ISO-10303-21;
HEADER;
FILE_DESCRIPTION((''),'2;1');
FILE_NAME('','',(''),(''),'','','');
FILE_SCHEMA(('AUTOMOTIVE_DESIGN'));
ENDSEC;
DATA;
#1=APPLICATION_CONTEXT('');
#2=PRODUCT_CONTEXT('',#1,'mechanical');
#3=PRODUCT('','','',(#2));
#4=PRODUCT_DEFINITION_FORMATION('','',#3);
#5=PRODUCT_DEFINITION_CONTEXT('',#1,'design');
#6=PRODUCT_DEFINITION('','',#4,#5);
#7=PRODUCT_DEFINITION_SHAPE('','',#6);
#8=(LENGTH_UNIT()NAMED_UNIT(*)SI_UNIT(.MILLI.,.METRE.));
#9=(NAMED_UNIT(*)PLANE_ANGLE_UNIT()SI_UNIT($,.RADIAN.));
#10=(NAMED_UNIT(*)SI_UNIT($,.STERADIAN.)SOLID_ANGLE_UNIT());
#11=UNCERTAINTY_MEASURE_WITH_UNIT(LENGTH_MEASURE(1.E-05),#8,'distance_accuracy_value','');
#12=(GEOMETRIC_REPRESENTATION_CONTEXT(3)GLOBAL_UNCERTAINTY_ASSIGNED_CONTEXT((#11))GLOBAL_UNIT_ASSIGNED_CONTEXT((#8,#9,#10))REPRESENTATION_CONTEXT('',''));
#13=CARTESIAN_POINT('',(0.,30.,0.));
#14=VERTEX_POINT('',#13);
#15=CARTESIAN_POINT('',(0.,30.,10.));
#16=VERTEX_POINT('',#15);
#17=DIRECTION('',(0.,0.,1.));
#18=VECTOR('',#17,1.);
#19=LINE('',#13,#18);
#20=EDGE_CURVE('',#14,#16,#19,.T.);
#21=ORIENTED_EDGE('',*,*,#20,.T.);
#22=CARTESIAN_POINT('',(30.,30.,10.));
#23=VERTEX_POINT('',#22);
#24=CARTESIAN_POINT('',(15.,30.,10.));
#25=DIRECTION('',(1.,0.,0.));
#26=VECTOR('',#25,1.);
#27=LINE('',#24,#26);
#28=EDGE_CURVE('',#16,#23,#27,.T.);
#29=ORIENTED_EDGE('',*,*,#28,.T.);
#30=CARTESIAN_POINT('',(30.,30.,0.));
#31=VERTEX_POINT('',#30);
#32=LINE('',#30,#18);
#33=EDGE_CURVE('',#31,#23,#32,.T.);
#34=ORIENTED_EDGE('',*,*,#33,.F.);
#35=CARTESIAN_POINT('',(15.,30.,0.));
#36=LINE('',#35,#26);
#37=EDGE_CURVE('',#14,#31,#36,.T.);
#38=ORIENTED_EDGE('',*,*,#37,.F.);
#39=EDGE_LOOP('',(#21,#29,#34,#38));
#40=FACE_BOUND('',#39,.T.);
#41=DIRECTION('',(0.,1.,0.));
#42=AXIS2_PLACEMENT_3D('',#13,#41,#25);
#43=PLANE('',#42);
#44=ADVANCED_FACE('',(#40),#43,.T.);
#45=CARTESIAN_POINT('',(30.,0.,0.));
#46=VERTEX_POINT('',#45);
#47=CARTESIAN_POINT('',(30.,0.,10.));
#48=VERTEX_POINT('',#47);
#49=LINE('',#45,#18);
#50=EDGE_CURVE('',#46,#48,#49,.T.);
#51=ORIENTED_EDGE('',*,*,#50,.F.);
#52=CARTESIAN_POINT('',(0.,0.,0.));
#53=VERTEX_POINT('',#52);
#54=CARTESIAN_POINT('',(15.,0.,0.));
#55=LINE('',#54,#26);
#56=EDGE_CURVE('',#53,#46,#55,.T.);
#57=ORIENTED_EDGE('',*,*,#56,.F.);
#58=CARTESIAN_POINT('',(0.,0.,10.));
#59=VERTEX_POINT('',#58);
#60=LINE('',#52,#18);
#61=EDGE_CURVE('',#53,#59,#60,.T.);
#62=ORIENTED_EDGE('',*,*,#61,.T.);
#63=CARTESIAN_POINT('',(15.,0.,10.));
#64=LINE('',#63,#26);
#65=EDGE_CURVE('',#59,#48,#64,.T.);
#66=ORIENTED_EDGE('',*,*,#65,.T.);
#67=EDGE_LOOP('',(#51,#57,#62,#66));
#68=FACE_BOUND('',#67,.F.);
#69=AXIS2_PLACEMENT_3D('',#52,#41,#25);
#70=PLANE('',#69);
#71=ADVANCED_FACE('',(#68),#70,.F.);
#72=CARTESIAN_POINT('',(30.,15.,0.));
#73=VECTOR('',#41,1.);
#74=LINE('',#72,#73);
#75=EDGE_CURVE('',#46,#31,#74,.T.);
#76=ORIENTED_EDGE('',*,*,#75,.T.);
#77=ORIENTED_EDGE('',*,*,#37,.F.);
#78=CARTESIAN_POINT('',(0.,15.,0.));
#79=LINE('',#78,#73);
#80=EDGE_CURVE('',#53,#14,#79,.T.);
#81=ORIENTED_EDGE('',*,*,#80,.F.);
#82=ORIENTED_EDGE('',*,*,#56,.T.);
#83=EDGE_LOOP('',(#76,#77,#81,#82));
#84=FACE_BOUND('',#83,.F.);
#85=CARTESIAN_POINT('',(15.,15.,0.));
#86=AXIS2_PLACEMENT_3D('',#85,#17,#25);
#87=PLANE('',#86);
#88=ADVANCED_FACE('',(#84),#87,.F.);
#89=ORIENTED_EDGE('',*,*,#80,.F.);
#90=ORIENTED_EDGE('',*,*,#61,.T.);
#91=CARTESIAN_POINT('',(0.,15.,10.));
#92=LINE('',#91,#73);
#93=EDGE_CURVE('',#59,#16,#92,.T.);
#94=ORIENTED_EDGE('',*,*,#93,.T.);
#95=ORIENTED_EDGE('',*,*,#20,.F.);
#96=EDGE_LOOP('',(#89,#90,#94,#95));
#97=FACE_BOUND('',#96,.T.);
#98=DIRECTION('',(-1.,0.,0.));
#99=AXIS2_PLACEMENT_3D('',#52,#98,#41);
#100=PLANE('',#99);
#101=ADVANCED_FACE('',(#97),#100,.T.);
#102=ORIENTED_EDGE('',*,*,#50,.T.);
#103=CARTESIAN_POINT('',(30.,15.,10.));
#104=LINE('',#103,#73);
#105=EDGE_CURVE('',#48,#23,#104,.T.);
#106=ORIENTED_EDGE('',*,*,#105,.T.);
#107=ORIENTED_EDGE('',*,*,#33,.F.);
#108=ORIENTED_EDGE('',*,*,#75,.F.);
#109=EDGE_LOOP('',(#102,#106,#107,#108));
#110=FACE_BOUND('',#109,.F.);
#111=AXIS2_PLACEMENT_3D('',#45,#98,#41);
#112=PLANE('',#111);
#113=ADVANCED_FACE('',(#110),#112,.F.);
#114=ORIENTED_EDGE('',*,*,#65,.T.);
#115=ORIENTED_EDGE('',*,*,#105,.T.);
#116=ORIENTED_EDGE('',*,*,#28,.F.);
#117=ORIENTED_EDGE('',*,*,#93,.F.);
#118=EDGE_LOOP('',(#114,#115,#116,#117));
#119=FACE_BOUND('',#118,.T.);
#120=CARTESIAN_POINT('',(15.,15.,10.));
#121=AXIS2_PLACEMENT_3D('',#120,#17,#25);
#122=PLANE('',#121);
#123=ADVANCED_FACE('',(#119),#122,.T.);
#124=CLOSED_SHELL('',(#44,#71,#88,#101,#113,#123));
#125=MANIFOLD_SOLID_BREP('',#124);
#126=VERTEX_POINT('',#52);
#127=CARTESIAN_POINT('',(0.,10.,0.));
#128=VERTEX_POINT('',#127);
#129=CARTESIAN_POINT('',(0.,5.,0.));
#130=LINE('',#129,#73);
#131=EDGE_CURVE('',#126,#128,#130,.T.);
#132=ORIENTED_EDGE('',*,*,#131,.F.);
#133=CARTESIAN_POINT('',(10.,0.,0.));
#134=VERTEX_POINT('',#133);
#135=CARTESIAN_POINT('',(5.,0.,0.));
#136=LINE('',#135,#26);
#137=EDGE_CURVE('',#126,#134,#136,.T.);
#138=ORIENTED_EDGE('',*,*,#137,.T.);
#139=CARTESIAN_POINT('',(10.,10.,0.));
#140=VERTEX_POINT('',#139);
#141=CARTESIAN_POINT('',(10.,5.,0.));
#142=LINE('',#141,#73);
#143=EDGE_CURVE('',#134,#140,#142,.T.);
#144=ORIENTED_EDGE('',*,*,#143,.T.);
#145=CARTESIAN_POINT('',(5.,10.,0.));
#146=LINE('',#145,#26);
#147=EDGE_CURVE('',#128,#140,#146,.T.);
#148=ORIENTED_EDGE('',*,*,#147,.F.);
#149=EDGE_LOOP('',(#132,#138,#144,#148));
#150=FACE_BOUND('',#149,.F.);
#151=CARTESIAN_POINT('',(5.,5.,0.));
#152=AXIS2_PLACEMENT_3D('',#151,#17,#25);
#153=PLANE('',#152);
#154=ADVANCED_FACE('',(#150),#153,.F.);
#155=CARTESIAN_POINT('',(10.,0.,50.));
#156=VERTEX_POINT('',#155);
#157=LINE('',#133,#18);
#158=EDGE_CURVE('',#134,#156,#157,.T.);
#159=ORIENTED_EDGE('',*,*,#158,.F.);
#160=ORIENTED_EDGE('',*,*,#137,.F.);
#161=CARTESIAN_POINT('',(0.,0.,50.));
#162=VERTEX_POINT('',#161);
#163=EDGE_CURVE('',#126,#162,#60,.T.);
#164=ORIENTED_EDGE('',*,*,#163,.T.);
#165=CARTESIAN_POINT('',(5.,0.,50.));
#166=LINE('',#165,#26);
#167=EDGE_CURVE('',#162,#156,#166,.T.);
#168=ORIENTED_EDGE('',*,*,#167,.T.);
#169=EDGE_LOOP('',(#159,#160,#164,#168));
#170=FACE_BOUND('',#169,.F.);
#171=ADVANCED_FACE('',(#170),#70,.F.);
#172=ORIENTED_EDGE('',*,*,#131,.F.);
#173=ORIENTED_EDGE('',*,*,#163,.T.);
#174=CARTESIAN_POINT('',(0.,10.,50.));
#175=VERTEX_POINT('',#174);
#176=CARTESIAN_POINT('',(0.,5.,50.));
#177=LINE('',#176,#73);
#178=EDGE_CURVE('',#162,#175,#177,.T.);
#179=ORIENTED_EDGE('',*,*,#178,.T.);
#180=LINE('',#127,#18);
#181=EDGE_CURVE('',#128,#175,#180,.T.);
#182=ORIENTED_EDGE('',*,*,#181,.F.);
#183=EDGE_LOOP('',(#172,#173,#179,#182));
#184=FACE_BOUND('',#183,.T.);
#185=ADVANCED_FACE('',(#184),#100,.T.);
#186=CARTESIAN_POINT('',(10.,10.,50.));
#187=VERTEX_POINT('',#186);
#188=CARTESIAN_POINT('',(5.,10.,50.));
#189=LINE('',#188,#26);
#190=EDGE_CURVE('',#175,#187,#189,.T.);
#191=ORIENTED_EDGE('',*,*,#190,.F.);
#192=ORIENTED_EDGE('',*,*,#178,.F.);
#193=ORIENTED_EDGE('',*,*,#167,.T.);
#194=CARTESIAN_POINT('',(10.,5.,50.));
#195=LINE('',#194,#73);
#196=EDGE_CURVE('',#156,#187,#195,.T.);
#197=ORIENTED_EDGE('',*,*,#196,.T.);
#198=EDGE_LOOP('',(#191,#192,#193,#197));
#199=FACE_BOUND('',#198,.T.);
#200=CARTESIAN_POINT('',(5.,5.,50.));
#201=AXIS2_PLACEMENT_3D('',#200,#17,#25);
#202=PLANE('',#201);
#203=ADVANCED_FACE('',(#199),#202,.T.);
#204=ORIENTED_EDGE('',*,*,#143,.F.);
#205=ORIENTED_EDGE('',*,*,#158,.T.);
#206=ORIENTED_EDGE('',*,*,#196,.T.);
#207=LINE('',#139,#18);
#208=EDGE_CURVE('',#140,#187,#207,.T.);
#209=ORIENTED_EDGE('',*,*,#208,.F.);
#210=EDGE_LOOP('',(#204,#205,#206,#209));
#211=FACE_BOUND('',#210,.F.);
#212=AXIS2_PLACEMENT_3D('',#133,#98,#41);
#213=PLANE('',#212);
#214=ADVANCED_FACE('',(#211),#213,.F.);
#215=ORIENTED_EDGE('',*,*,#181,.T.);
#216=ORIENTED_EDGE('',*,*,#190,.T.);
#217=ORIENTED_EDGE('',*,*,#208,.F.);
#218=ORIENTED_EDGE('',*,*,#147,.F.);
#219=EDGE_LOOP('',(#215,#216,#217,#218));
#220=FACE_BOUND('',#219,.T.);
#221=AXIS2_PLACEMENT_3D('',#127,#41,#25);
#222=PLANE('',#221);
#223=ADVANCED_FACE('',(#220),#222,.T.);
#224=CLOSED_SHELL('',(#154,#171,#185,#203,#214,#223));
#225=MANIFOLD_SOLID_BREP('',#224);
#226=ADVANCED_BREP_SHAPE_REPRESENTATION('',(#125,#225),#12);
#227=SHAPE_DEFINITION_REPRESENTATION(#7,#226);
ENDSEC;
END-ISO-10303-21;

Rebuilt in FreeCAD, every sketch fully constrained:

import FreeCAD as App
import Part
import Sketcher
from FreeCAD import Vector
Q = App.Units.Quantity


def add_polygon(sketch, points):
    """Adds a closed chain of lines whose ends are joined by coincident constraints."""
    first, n = sketch.GeometryCount, len(points)
    for a, b in zip(points, points[1:] + points[:1]):
        sketch.addGeometry(Part.LineSegment(App.Vector(*a, 0), App.Vector(*b, 0)), False)
    for i in range(n):
        sketch.addConstraint(Sketcher.Constraint("Coincident", first + i, 2, first + (i + 1) % n, 1))

doc = App.newDocument("Part")
params = doc.addObject("Spreadsheet::Sheet", "Params")
for row, (alias, value) in enumerate([
    ("sketch1_width", "30 mm"),
    ("pad1_length", "10 mm"),
    ("sketch2_width", "10 mm"),
    ("pad2_length", "50 mm"),
], start=1):
    params.set(f"A{row}", alias)
    params.set(f"B{row}", "=" + value)
    params.setAlias(f"B{row}", alias)

body = doc.addObject("PartDesign::Body", "Body")

# Sketch on XY plane
sketch1 = body.newObject("Sketcher::SketchObject", "Sketch")
sketch1.AttachmentSupport = (doc.getObject("XY_Plane"), [""])
sketch1.MapMode = "FlatFace"
add_polygon(sketch1, [(0, 30), (0, 0), (30, 0), (30, 30)])  # lines 0-3
sketch1.addConstraint(Sketcher.Constraint("Vertical", 0))
sketch1.addConstraint(Sketcher.Constraint("Horizontal", 1))
sketch1.addConstraint(Sketcher.Constraint("Vertical", 2))
sketch1.addConstraint(Sketcher.Constraint("Horizontal", 3))
sketch1.addConstraint(Sketcher.Constraint("Coincident", 0, 2, -1, 1))
sketch1.addConstraint(Sketcher.Constraint("Equal", 3, 0))
sketch1.addConstraint(Sketcher.Constraint("DistanceX", 1, 1, 1, 2, Q("30 mm")))
sketch1.setExpression("Constraints[10]", "Params.sketch1_width")
pad1 = body.newObject("PartDesign::Pad", "Pad")
pad1.Profile = sketch1
pad1.setExpression("Length", "Params.pad1_length")
body2 = doc.addObject("PartDesign::Body", "Body001")

# Sketch on XY plane
sketch2 = body2.newObject("Sketcher::SketchObject", "Sketch001")
sketch2.AttachmentSupport = (doc.getObject("XY_Plane001"), [""])
sketch2.MapMode = "FlatFace"
add_polygon(sketch2, [(0, 10), (0, 0), (10, 0), (10, 10)])  # lines 0-3
sketch2.addConstraint(Sketcher.Constraint("Vertical", 0))
sketch2.addConstraint(Sketcher.Constraint("Horizontal", 1))
sketch2.addConstraint(Sketcher.Constraint("Vertical", 2))
sketch2.addConstraint(Sketcher.Constraint("Horizontal", 3))
sketch2.addConstraint(Sketcher.Constraint("Coincident", 0, 2, -1, 1))
sketch2.addConstraint(Sketcher.Constraint("Equal", 3, 0))
sketch2.addConstraint(Sketcher.Constraint("DistanceX", 1, 1, 1, 2, Q("10 mm")))
sketch2.setExpression("Constraints[10]", "Params.sketch2_width")
pad2 = body2.newObject("PartDesign::Pad", "Pad001")
pad2.Profile = sketch2
pad2.setExpression("Length", "Params.pad2_length")

doc.recompute()
